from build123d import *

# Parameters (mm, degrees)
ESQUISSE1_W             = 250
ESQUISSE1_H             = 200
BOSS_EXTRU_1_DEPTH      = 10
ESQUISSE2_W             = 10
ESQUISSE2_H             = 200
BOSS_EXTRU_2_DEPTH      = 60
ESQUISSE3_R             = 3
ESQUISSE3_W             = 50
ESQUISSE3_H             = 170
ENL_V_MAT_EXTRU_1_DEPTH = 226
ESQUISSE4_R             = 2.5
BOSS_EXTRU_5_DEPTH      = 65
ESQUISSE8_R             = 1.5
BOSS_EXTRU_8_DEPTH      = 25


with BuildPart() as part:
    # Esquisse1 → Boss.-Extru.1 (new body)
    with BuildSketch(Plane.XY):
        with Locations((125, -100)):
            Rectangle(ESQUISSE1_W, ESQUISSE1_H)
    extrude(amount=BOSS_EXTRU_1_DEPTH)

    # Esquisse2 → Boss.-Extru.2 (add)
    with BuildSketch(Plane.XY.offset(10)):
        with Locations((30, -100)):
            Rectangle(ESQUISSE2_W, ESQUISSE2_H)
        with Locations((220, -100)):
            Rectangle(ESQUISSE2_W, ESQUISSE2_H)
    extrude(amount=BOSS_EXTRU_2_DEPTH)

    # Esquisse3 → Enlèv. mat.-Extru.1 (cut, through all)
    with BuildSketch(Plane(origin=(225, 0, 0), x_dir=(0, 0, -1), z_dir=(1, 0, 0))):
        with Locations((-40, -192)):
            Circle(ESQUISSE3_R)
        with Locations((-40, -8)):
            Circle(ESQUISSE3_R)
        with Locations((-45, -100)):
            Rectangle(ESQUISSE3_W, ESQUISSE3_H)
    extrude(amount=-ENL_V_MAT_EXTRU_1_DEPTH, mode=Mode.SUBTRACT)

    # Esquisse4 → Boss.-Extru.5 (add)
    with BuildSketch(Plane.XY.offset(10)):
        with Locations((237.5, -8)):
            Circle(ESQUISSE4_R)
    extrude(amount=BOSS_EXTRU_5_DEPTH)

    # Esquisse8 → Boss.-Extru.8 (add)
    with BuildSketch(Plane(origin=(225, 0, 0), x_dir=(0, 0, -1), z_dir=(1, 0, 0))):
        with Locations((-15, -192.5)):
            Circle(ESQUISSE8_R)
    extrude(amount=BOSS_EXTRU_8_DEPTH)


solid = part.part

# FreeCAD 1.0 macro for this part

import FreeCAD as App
import Part
import Sketcher

V = App.Vector

doc = App.newDocument("Part")
body = doc.addObject("PartDesign::Body", "Body")

sketch1 = doc.addObject("Sketcher::SketchObject", "Sketch")
body.addObject(sketch1)
sketch1.AttachmentSupport = (doc.XY_Plane, [""])
sketch1.MapMode = "FlatFace"
sketch1.addGeometry(Part.LineSegment(V(0, 0, 0), V(0, -200, 0)), False)
sketch1.addGeometry(Part.LineSegment(V(0, -200, 0), V(250, -200, 0)), False)
sketch1.addGeometry(Part.LineSegment(V(250, -200, 0), V(250, 0, 0)), False)
sketch1.addGeometry(Part.LineSegment(V(250, 0, 0), V(0, 0, 0)), False)
sketch1.addConstraint(Sketcher.Constraint("Coincident", 0, 2, 1, 1))
sketch1.addConstraint(Sketcher.Constraint("Coincident", 1, 2, 2, 1))
sketch1.addConstraint(Sketcher.Constraint("Coincident", 2, 2, 3, 1))
sketch1.addConstraint(Sketcher.Constraint("Coincident", 3, 2, 0, 1))
sketch1.addConstraint(Sketcher.Constraint("Vertical", 0))
sketch1.addConstraint(Sketcher.Constraint("Horizontal", 1))
sketch1.addConstraint(Sketcher.Constraint("Vertical", 2))
sketch1.addConstraint(Sketcher.Constraint("Horizontal", 3))
sketch1.addConstraint(Sketcher.Constraint("Coincident", 3, 2, -1, 1))
sketch1.addConstraint(Sketcher.Constraint("DistanceX", 1, 1, 1, 2, 250.0))
sketch1.addConstraint(Sketcher.Constraint("DistanceY", 0, 2, 0, 1, 200.0))
pad1 = doc.addObject("PartDesign::Pad", "Pad")
body.addObject(pad1)
pad1.Profile = sketch1
pad1.Length = 10

sketch2 = doc.addObject("Sketcher::SketchObject", "Sketch001")
body.addObject(sketch2)
sketch2.AttachmentSupport = (doc.XY_Plane, [""])
sketch2.MapMode = "FlatFace"
sketch2.AttachmentOffset = App.Placement(V(0, 0, 10), App.Rotation())
sketch2.addGeometry(Part.LineSegment(V(25, 0, 0), V(25, -200, 0)), False)
sketch2.addGeometry(Part.LineSegment(V(25, -200, 0), V(35, -200, 0)), False)
sketch2.addGeometry(Part.LineSegment(V(35, -200, 0), V(35, 0, 0)), False)
sketch2.addGeometry(Part.LineSegment(V(35, 0, 0), V(25, 0, 0)), False)
sketch2.addGeometry(Part.LineSegment(V(215, 0, 0), V(215, -200, 0)), False)
sketch2.addGeometry(Part.LineSegment(V(215, -200, 0), V(225, -200, 0)), False)
sketch2.addGeometry(Part.LineSegment(V(225, -200, 0), V(225, 0, 0)), False)
sketch2.addGeometry(Part.LineSegment(V(225, 0, 0), V(215, 0, 0)), False)
sketch2.addConstraint(Sketcher.Constraint("Coincident", 0, 2, 1, 1))
sketch2.addConstraint(Sketcher.Constraint("Coincident", 1, 2, 2, 1))
sketch2.addConstraint(Sketcher.Constraint("Coincident", 2, 2, 3, 1))
sketch2.addConstraint(Sketcher.Constraint("Coincident", 3, 2, 0, 1))
sketch2.addConstraint(Sketcher.Constraint("Coincident", 4, 2, 5, 1))
sketch2.addConstraint(Sketcher.Constraint("Coincident", 5, 2, 6, 1))
sketch2.addConstraint(Sketcher.Constraint("Coincident", 6, 2, 7, 1))
sketch2.addConstraint(Sketcher.Constraint("Coincident", 7, 2, 4, 1))
sketch2.addConstraint(Sketcher.Constraint("Vertical", 0))
sketch2.addConstraint(Sketcher.Constraint("Horizontal", 1))
sketch2.addConstraint(Sketcher.Constraint("Vertical", 2))
sketch2.addConstraint(Sketcher.Constraint("Horizontal", 3))
sketch2.addConstraint(Sketcher.Constraint("Vertical", 4))
sketch2.addConstraint(Sketcher.Constraint("Horizontal", 5))
sketch2.addConstraint(Sketcher.Constraint("Vertical", 6))
sketch2.addConstraint(Sketcher.Constraint("Horizontal", 7))
sketch2.addConstraint(Sketcher.Constraint("PointOnObject", 2, 2, -1))
sketch2.addConstraint(Sketcher.Constraint("PointOnObject", 6, 2, -1))
sketch2.addConstraint(Sketcher.Constraint("Horizontal", 1, 2, 4, 2))
sketch2.addConstraint(Sketcher.Constraint("Equal", 3, 5))
sketch2.addConstraint(Sketcher.Constraint("DistanceX", 1, 1, 1, 2, 10.0))
sketch2.addConstraint(Sketcher.Constraint("DistanceY", 0, 2, 0, 1, 200.0))
sketch2.addConstraint(Sketcher.Constraint("DistanceX", -1, 1, 0, 2, 25.0))
sketch2.addConstraint(Sketcher.Constraint("DistanceX", -1, 1, 4, 2, 215.0))
pad2 = doc.addObject("PartDesign::Pad", "Pad001")
body.addObject(pad2)
pad2.Profile = sketch2
pad2.Length = 60

sketch3 = doc.addObject("Sketcher::SketchObject", "Sketch002")
body.addObject(sketch3)
sketch3.AttachmentSupport = (doc.YZ_Plane, [""])
sketch3.MapMode = "FlatFace"
sketch3.AttachmentOffset = App.Placement(V(0, 0, 225), App.Rotation())
sketch3.addGeometry(Part.Circle(V(-192, 40, 0), V(0, 0, 1), 3), False)
sketch3.addGeometry(Part.Circle(V(-8, 40, 0), V(0, 0, 1), 3), False)
sketch3.addGeometry(Part.LineSegment(V(-15, 70, 0), V(-185, 70, 0)), False)
sketch3.addGeometry(Part.LineSegment(V(-185, 70, 0), V(-185, 20, 0)), False)
sketch3.addGeometry(Part.LineSegment(V(-185, 20, 0), V(-15, 20, 0)), False)
sketch3.addGeometry(Part.LineSegment(V(-15, 20, 0), V(-15, 70, 0)), False)
sketch3.addConstraint(Sketcher.Constraint("Coincident", 2, 2, 3, 1))
sketch3.addConstraint(Sketcher.Constraint("Coincident", 3, 2, 4, 1))
sketch3.addConstraint(Sketcher.Constraint("Coincident", 4, 2, 5, 1))
sketch3.addConstraint(Sketcher.Constraint("Coincident", 5, 2, 2, 1))
sketch3.addConstraint(Sketcher.Constraint("Horizontal", 2))
sketch3.addConstraint(Sketcher.Constraint("Vertical", 3))
sketch3.addConstraint(Sketcher.Constraint("Horizontal", 4))
sketch3.addConstraint(Sketcher.Constraint("Vertical", 5))
sketch3.addConstraint(Sketcher.Constraint("Equal", 0, 1))
sketch3.addConstraint(Sketcher.Constraint("Horizontal", 0, 3, 1, 3))
sketch3.addConstraint(Sketcher.Constraint("Diameter", 0, 6.0))
sketch3.addConstraint(Sketcher.Constraint("DistanceX", 2, 2, 2, 1, 170.0))
sketch3.addConstraint(Sketcher.Constraint("DistanceY", 3, 2, 3, 1, 50.0))
sketch3.addConstraint(Sketcher.Constraint("DistanceX", 0, 3, -1, 1, 192.0))
sketch3.addConstraint(Sketcher.Constraint("DistanceY", -1, 1, 0, 3, 40.0))
sketch3.addConstraint(Sketcher.Constraint("DistanceX", 1, 3, -1, 1, 8.0))
sketch3.addConstraint(Sketcher.Constraint("DistanceX", 2, 2, -1, 1, 185.0))
sketch3.addConstraint(Sketcher.Constraint("DistanceY", -1, 1, 2, 2, 70.0))
pocket1 = doc.addObject("PartDesign::Pocket", "Pocket")
body.addObject(pocket1)
pocket1.Profile = sketch3
pocket1.Type = "ThroughAll"

sketch4 = doc.addObject("Sketcher::SketchObject", "Sketch003")
body.addObject(sketch4)
sketch4.AttachmentSupport = (doc.XY_Plane, [""])
sketch4.MapMode = "FlatFace"
sketch4.AttachmentOffset = App.Placement(V(0, 0, 10), App.Rotation())
sketch4.addGeometry(Part.Circle(V(237.5, -8, 0), V(0, 0, 1), 2.5), False)
sketch4.addConstraint(Sketcher.Constraint("Diameter", 0, 5.0))
sketch4.addConstraint(Sketcher.Constraint("DistanceY", 0, 3, -1, 1, 8.0))
sketch4.addConstraint(Sketcher.Constraint("DistanceX", -1, 1, 0, 3, 237.5))
pad3 = doc.addObject("PartDesign::Pad", "Pad002")
body.addObject(pad3)
pad3.Profile = sketch4
pad3.Length = 65

sketch5 = doc.addObject("Sketcher::SketchObject", "Sketch004")
body.addObject(sketch5)
sketch5.AttachmentSupport = (doc.YZ_Plane, [""])
sketch5.MapMode = "FlatFace"
sketch5.AttachmentOffset = App.Placement(V(0, 0, 225), App.Rotation())
sketch5.addGeometry(Part.Circle(V(-192.5, 15, 0), V(0, 0, 1), 1.5), False)
sketch5.addConstraint(Sketcher.Constraint("Diameter", 0, 3.0))
sketch5.addConstraint(Sketcher.Constraint("DistanceY", -1, 1, 0, 3, 15.0))
sketch5.addConstraint(Sketcher.Constraint("DistanceX", 0, 3, -1, 1, 192.5))
pad4 = doc.addObject("PartDesign::Pad", "Pad003")
body.addObject(pad4)
pad4.Profile = sketch5
pad4.Length = 25

doc.recompute()
